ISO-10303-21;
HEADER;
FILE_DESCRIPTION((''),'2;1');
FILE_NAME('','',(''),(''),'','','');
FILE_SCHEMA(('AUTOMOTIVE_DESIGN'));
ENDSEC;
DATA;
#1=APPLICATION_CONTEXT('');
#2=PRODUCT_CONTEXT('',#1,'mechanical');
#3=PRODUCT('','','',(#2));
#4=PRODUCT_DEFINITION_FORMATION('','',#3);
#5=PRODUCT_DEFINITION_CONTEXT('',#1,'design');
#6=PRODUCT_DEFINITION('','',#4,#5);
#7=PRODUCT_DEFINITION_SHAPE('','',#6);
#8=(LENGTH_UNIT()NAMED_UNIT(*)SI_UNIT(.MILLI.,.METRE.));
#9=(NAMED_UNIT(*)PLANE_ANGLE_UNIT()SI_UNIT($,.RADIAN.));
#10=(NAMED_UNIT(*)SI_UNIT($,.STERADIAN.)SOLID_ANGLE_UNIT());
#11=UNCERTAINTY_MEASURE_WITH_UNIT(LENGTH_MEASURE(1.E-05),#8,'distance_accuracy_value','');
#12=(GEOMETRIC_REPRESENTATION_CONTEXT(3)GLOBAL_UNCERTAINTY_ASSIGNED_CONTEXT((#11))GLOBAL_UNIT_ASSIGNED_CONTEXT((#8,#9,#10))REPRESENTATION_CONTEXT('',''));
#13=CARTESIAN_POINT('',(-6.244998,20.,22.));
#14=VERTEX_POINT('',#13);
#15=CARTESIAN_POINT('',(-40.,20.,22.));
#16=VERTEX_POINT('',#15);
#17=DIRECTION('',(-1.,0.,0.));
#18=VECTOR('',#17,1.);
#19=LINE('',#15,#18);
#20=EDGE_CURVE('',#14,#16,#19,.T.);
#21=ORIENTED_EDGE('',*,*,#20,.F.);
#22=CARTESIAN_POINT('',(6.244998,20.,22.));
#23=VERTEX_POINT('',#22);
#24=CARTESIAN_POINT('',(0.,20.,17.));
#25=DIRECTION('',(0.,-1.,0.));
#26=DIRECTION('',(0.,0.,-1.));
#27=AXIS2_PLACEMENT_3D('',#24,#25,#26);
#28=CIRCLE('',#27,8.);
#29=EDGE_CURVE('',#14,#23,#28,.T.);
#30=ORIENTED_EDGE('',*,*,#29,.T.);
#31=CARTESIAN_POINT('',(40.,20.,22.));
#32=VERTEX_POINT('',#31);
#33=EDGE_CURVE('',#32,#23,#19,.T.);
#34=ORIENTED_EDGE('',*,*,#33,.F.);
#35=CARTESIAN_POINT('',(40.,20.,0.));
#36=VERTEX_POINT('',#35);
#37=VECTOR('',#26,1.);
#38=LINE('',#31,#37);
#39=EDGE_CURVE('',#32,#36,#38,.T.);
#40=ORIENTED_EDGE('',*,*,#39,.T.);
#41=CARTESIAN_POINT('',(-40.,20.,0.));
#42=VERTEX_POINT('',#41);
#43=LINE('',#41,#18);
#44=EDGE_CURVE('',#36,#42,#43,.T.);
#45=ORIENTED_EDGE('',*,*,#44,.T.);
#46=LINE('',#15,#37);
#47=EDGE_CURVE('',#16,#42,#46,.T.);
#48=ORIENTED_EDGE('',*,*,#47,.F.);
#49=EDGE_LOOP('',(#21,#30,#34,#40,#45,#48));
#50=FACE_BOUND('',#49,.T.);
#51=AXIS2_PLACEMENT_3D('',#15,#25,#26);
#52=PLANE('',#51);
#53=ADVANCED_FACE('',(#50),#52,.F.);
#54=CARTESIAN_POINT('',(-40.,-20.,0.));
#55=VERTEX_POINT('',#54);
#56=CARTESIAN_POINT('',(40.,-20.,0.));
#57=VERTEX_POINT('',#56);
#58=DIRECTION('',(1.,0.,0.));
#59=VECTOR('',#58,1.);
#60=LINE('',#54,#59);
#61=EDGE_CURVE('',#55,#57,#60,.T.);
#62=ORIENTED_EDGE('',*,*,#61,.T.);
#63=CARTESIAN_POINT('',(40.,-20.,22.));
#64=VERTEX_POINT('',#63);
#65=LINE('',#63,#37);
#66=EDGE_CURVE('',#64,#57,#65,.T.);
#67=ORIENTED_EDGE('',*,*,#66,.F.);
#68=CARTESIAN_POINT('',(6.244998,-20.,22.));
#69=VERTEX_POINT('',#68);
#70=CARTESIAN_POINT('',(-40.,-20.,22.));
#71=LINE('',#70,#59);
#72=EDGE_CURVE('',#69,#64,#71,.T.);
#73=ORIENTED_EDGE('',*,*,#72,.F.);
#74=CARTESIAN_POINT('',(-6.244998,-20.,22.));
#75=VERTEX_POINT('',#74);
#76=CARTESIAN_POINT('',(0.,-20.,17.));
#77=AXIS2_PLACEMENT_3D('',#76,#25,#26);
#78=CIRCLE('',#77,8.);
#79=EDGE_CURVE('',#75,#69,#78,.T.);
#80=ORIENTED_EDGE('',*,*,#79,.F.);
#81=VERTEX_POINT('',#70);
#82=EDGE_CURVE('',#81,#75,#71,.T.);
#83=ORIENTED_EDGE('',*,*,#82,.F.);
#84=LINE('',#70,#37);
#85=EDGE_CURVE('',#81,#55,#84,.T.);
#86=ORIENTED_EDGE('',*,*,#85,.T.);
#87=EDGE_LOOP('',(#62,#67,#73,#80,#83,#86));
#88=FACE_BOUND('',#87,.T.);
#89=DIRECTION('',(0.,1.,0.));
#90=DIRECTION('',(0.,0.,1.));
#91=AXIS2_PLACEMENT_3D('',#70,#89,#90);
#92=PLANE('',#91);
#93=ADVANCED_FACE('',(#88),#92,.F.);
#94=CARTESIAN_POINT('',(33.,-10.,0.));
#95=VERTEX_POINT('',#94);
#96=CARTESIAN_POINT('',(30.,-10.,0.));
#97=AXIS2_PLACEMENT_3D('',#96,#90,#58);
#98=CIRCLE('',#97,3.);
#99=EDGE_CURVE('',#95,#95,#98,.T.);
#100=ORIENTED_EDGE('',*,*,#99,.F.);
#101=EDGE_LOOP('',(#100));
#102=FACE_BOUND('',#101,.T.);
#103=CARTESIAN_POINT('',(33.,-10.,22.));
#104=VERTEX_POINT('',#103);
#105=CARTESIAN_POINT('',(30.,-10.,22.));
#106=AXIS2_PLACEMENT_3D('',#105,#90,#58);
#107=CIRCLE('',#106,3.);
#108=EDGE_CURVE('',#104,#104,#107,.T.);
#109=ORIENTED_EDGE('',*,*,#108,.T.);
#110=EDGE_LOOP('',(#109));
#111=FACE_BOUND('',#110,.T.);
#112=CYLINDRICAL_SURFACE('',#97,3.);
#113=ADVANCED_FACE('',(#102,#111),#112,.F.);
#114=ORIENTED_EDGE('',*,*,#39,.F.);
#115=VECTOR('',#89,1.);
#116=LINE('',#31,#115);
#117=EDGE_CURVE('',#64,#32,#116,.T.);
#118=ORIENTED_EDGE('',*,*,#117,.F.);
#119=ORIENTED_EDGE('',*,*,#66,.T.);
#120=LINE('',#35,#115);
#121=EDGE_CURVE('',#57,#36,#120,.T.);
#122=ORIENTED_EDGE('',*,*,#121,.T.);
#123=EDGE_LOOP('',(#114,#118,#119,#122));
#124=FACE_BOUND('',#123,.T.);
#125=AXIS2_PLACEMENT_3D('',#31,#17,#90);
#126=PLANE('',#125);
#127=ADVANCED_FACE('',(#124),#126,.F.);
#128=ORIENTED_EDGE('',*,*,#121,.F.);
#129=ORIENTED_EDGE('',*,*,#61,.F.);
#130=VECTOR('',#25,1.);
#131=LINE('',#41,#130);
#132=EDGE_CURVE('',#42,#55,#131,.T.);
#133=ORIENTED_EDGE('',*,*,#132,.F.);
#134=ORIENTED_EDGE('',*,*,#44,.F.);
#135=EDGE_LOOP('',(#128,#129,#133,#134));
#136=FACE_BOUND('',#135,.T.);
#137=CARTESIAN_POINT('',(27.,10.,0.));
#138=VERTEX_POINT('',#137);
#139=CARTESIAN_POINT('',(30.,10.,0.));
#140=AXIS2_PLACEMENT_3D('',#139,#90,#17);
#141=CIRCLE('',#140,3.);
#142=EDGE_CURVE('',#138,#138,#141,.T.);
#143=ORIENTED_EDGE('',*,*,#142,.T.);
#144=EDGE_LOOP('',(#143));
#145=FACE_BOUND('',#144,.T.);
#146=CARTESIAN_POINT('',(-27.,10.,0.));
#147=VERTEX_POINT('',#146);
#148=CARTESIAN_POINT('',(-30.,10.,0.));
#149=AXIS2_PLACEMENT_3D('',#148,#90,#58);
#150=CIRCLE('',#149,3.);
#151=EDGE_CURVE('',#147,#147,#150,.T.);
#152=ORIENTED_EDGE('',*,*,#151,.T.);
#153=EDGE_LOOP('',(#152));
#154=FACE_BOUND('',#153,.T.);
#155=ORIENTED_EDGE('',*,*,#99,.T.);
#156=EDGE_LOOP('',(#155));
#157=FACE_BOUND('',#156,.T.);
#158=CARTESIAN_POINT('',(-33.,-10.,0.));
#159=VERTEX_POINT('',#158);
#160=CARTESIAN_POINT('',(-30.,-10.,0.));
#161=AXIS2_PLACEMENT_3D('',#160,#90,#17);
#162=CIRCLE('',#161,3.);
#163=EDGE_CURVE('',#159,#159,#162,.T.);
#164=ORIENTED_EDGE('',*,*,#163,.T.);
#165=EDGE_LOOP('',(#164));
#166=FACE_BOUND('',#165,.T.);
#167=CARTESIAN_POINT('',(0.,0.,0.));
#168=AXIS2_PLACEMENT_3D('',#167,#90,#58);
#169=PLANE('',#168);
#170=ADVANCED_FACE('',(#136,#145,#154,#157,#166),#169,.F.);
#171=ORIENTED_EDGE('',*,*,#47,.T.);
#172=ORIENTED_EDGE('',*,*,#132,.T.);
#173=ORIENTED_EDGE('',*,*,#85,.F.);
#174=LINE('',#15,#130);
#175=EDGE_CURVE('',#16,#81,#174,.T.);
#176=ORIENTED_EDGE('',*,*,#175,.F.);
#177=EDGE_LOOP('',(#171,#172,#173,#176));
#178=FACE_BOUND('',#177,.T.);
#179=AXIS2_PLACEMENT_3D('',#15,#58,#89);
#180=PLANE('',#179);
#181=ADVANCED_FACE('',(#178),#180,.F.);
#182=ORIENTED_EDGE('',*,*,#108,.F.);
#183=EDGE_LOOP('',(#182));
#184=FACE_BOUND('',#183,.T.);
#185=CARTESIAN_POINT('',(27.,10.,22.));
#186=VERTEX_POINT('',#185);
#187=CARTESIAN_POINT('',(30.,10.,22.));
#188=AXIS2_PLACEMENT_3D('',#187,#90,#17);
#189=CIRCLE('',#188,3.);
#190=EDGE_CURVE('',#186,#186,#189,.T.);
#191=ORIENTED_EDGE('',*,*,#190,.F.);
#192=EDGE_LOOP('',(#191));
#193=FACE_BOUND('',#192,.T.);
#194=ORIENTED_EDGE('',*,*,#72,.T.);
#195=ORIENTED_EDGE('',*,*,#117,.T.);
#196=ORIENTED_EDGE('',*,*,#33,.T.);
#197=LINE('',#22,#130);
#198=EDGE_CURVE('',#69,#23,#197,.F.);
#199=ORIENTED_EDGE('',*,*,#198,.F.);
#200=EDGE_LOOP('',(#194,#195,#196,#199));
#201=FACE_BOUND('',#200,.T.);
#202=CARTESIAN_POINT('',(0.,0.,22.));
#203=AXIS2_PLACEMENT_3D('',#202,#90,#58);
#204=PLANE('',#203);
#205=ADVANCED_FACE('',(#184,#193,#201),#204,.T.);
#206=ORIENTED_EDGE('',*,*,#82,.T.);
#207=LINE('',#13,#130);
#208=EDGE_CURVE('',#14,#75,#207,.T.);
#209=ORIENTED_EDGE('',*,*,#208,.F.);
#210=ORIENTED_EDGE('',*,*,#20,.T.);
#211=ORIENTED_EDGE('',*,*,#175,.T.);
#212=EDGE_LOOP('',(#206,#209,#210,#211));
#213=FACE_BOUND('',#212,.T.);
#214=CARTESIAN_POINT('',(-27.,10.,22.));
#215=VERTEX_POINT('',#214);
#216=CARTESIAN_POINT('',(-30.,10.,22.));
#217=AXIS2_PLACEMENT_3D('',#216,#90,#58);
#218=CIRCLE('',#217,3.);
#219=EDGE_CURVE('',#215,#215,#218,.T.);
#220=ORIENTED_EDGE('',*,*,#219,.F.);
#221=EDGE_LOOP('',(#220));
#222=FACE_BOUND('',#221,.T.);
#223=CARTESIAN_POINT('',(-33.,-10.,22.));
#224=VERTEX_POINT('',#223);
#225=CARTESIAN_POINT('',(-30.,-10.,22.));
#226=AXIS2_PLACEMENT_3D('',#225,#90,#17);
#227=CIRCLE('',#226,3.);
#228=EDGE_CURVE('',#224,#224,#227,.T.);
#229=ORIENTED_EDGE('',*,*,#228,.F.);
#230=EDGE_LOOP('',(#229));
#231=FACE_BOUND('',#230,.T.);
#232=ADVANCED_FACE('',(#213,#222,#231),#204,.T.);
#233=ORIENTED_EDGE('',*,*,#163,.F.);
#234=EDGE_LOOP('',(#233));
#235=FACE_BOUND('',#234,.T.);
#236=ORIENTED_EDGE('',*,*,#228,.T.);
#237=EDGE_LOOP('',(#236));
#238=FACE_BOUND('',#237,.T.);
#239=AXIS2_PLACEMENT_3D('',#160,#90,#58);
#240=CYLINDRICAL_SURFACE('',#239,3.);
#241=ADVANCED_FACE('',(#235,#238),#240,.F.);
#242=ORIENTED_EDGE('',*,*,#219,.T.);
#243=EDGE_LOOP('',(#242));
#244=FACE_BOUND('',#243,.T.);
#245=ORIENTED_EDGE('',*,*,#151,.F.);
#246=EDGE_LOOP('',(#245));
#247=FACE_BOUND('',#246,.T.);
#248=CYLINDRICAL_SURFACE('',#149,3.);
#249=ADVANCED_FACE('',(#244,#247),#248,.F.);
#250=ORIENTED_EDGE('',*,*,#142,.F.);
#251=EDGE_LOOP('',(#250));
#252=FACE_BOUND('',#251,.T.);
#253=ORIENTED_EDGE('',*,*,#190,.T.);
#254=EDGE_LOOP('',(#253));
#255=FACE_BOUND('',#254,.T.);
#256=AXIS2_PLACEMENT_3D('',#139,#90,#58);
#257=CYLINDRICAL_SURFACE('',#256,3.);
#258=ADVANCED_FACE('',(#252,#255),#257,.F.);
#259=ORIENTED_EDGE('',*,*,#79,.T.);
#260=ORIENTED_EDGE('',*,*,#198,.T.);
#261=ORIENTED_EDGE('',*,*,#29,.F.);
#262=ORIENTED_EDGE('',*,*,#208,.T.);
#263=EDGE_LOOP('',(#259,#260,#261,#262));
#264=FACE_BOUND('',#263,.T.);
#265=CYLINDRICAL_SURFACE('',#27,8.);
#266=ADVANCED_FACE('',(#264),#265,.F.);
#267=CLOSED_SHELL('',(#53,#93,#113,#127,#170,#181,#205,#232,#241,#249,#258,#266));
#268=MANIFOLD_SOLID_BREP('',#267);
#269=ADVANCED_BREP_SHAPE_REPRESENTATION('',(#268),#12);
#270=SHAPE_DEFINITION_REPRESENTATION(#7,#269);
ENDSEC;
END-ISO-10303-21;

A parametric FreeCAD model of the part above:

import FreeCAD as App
import Part
import Sketcher
from FreeCAD import Vector
Q = App.Units.Quantity

doc = App.newDocument("Part")
params = doc.addObject("Spreadsheet::Sheet", "Params")
for row, (alias, value) in enumerate([
    ("sketch1_width", "80 mm"),
    ("sketch1_height", "40 mm"),
    ("pad1_length", "22 mm"),
    ("sketch2_diameter", "16 mm"),
    ("sketch3_diameter", "6 mm"),
], start=1):
    params.set(f"A{row}", alias)
    params.set(f"B{row}", "=" + value)
    params.setAlias(f"B{row}", alias)

body = doc.addObject("PartDesign::Body", "Body")

# Sketch on XY plane
sketch1 = body.newObject("Sketcher::SketchObject", "Sketch")
sketch1.AttachmentSupport = (doc.getObject("XY_Plane"), [""])
sketch1.MapMode = "FlatFace"
sketch1.addGeometry(Part.LineSegment(Vector(-40, 20, 0), Vector(-40, -20, 0)), False)
sketch1.addGeometry(Part.LineSegment(Vector(-40, -20, 0), Vector(40, -20, 0)), False)
sketch1.addGeometry(Part.LineSegment(Vector(40, -20, 0), Vector(40, 20, 0)), False)
sketch1.addGeometry(Part.LineSegment(Vector(40, 20, 0), Vector(-40, 20, 0)), False)
sketch1.addConstraint(Sketcher.Constraint("Coincident", 0, 2, 1, 1))
sketch1.addConstraint(Sketcher.Constraint("Coincident", 1, 2, 2, 1))
sketch1.addConstraint(Sketcher.Constraint("Coincident", 2, 2, 3, 1))
sketch1.addConstraint(Sketcher.Constraint("Coincident", 3, 2, 0, 1))
sketch1.addConstraint(Sketcher.Constraint("Vertical", 0))
sketch1.addConstraint(Sketcher.Constraint("Horizontal", 1))
sketch1.addConstraint(Sketcher.Constraint("Vertical", 2))
sketch1.addConstraint(Sketcher.Constraint("Horizontal", 3))
sketch1.addConstraint(Sketcher.Constraint("Symmetric", 0, 2, 2, 2, -1, 1))
sketch1.addConstraint(Sketcher.Constraint("DistanceX", 1, 1, 1, 2, Q("80 mm")))
sketch1.addConstraint(Sketcher.Constraint("DistanceY", 0, 2, 0, 1, Q("40 mm")))
sketch1.setExpression("Constraints[9]", "Params.sketch1_width")
sketch1.setExpression("Constraints[10]", "Params.sketch1_height")
pad1 = body.newObject("PartDesign::Pad", "Pad")
pad1.Profile = sketch1
pad1.setExpression("Length", "Params.pad1_length")

# Sketch on XZ plane
sketch2 = body.newObject("Sketcher::SketchObject", "Sketch001")
sketch2.AttachmentSupport = (doc.getObject("XZ_Plane"), [""])
sketch2.MapMode = "FlatFace"
sketch2.AttachmentOffset = App.Placement(Vector(0, 0, 20), App.Rotation())
sketch2.addGeometry(Part.Circle(Vector(0, 17, 0), Vector(0, 0, 1), 8), False)
sketch2.addConstraint(Sketcher.Constraint("PointOnObject", 0, 3, -2))
sketch2.addConstraint(Sketcher.Constraint("Diameter", 0, Q("16 mm")))
sketch2.addConstraint(Sketcher.Constraint("DistanceY", -1, 1, 0, 3, Q("17 mm")))
sketch2.setExpression("Constraints[1]", "Params.sketch2_diameter")
pocket1 = body.newObject("PartDesign::Pocket", "Pocket")
pocket1.Profile = sketch2
pocket1.Type = "ThroughAll"

# Sketch on XY plane
sketch3 = body.newObject("Sketcher::SketchObject", "Sketch002")
sketch3.AttachmentSupport = (doc.getObject("XY_Plane"), [""])
sketch3.MapMode = "FlatFace"
sketch3.AttachmentOffset = App.Placement(Vector(0, 0, 22), App.Rotation())
sketch3.addGeometry(Part.Circle(Vector(-30, 10, 0), Vector(0, 0, 1), 3), False)
sketch3.addGeometry(Part.Circle(Vector(-30, -10, 0), Vector(0, 0, 1), 3), False)
sketch3.addGeometry(Part.Circle(Vector(30, -10, 0), Vector(0, 0, 1), 3), False)
sketch3.addGeometry(Part.Circle(Vector(30, 10, 0), Vector(0, 0, 1), 3), False)
sketch3.addConstraint(Sketcher.Constraint("Equal", 0, 1))
sketch3.addConstraint(Sketcher.Constraint("Equal", 1, 2))
sketch3.addConstraint(Sketcher.Constraint("Equal", 2, 3))
sketch3.addConstraint(Sketcher.Constraint("Symmetric", 0, 3, 2, 3, -1, 1))
sketch3.addConstraint(Sketcher.Constraint("Symmetric", 1, 3, 3, 3, -1, 1))
sketch3.addConstraint(Sketcher.Constraint("Symmetric", 1, 3, 2, 3, -2))
sketch3.addConstraint(Sketcher.Constraint("Diameter", 0, Q("6 mm")))
sketch3.addConstraint(Sketcher.Constraint("DistanceX", 0, 3, -1, 1, Q("30 mm")))
sketch3.addConstraint(Sketcher.Constraint("DistanceY", -1, 1, 0, 3, Q("10 mm")))
sketch3.setExpression("Constraints[6]", "Params.sketch3_diameter")
pocket2 = body.newObject("PartDesign::Pocket", "Pocket001")
pocket2.Profile = sketch3
pocket2.Type = "ThroughAll"

doc.recompute()
